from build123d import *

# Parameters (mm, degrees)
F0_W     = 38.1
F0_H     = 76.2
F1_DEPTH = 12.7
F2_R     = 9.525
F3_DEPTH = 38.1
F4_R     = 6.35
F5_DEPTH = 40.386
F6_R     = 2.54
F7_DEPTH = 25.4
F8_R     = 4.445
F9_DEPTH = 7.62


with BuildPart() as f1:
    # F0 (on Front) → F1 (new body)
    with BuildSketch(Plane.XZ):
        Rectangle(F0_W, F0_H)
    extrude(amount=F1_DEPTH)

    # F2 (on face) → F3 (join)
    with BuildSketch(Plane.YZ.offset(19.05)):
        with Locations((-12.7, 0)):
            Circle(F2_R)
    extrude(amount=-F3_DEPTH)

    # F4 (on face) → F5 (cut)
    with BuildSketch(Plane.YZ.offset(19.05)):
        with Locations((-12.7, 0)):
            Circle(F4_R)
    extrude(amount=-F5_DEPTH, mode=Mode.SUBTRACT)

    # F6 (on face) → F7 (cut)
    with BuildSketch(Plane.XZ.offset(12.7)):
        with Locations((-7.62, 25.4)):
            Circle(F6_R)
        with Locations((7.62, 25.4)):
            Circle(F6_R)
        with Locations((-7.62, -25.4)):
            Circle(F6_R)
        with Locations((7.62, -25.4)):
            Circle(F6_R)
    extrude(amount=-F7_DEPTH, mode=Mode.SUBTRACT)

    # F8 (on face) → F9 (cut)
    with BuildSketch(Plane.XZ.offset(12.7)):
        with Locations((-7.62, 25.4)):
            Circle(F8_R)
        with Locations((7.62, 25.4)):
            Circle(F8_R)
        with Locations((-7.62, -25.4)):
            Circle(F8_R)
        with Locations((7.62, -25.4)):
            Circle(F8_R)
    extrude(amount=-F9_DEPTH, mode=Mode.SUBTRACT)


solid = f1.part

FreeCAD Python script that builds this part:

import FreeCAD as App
import Part
import Sketcher
Q = App.Units.Quantity


def add_polygon(sketch, points):
    """Adds a closed chain of lines whose ends are joined by coincident constraints."""
    first, n = sketch.GeometryCount, len(points)
    for a, b in zip(points, points[1:] + points[:1]):
        sketch.addGeometry(Part.LineSegment(App.Vector(*a, 0), App.Vector(*b, 0)), False)
    for i in range(n):
        sketch.addConstraint(Sketcher.Constraint("Coincident", first + i, 2, first + (i + 1) % n, 1))

doc = App.newDocument("Part")
body = doc.addObject("PartDesign::Body", "Body")

sketch1 = body.newObject("Sketcher::SketchObject", "Sketch")
sketch1.AttachmentSupport = (doc.getObject("XZ_Plane"), [""])
sketch1.MapMode = "FlatFace"
add_polygon(sketch1, [(-19, 38), (-19, -38), (19, -38), (19, 38)])
sketch1.addConstraint([
    Sketcher.Constraint("Vertical", 0),
    Sketcher.Constraint("Horizontal", 1),
    Sketcher.Constraint("Vertical", 2),
    Sketcher.Constraint("Horizontal", 3),
    Sketcher.Constraint("Symmetric", 0, 2, 2, 2, -1, 1),
    Sketcher.Constraint("DistanceY", 0, 2, 0, 1, Q("3 in")),
    Sketcher.Constraint("DistanceX", 1, 1, 1, 2, Q("1.5 in")),
])
pad1 = body.newObject("PartDesign::Pad", "Pad")
pad1.Profile = sketch1
pad1.Length = Q("0.5 in")

sketch2 = body.newObject("Sketcher::SketchObject", "Sketch001")
sketch2.AttachmentSupport = (doc.getObject("YZ_Plane"), [""])
sketch2.MapMode = "FlatFace"
sketch2.AttachmentOffset = App.Placement(App.Vector(0, 0, 0.75 * 25.4), App.Rotation())
sketch2.addGeometry(Part.Circle(App.Vector(-13, 0, 0), App.Vector(0, 0, 1), 10), False)
sketch2.addConstraint([
    Sketcher.Constraint("PointOnObject", 0, 3, -1),
    Sketcher.Constraint("Diameter", 0, Q("0.75 in")),
    Sketcher.Constraint("DistanceX", 0, 3, -1, 1, Q("0.5 in")),
])
pad2 = body.newObject("PartDesign::Pad", "Pad001")
pad2.Profile = sketch2
pad2.Length = Q("1.5 in")
pad2.Reversed = True

sketch3 = body.newObject("Sketcher::SketchObject", "Sketch002")
sketch3.AttachmentSupport = (doc.getObject("YZ_Plane"), [""])
sketch3.MapMode = "FlatFace"
sketch3.AttachmentOffset = App.Placement(App.Vector(0, 0, 0.75 * 25.4), App.Rotation())
sketch3.addGeometry(Part.Circle(App.Vector(-13, 0, 0), App.Vector(0, 0, 1), 6), False)
sketch3.addConstraint([
    Sketcher.Constraint("PointOnObject", 0, 3, -1),
    Sketcher.Constraint("Diameter", 0, Q("0.5 in")),
    Sketcher.Constraint("DistanceX", 0, 3, -1, 1, Q("0.5 in")),
])
pocket1 = body.newObject("PartDesign::Pocket", "Pocket")
pocket1.Profile = sketch3
pocket1.Length = Q("1.59 in")

sketch4 = body.newObject("Sketcher::SketchObject", "Sketch003")
sketch4.AttachmentSupport = (doc.getObject("XZ_Plane"), [""])
sketch4.MapMode = "FlatFace"
sketch4.AttachmentOffset = App.Placement(App.Vector(0, 0, 0.5 * 25.4), App.Rotation())
sketch4.addGeometry([
    Part.Circle(App.Vector(-7.6, 25.4, 0), App.Vector(0, 0, 1), 2.5),
    Part.Circle(App.Vector(7.6, 25.4, 0), App.Vector(0, 0, 1), 2.5),
    Part.Circle(App.Vector(-7.6, -25.4, 0), App.Vector(0, 0, 1), 2.5),
    Part.Circle(App.Vector(7.6, -25.4, 0), App.Vector(0, 0, 1), 2.5),
], False)
sketch4.addConstraint([
    Sketcher.Constraint("Equal", 0, 1),
    Sketcher.Constraint("Equal", 1, 2),
    Sketcher.Constraint("Equal", 2, 3),
    Sketcher.Constraint("Symmetric", 1, 3, 2, 3, -1, 1),
    Sketcher.Constraint("Symmetric", 0, 3, 3, 3, -1, 1),
    Sketcher.Constraint("Symmetric", 0, 3, 1, 3, -2),
    Sketcher.Constraint("Diameter", 0, Q("0.2 in")),
    Sketcher.Constraint("DistanceY", -1, 1, 0, 3, Q("1 in")),
    Sketcher.Constraint("DistanceX", 0, 3, -1, 1, Q("0.3 in")),
])
pocket2 = body.newObject("PartDesign::Pocket", "Pocket001")
pocket2.Profile = sketch4
pocket2.Length = Q("1 in")

sketch5 = body.newObject("Sketcher::SketchObject", "Sketch004")
sketch5.AttachmentSupport = (doc.getObject("XZ_Plane"), [""])
sketch5.MapMode = "FlatFace"
sketch5.AttachmentOffset = App.Placement(App.Vector(0, 0, 0.5 * 25.4), App.Rotation())
sketch5.addGeometry([
    Part.Circle(App.Vector(-7.6, 25.4, 0), App.Vector(0, 0, 1), 4.4),
    Part.Circle(App.Vector(7.6, 25.4, 0), App.Vector(0, 0, 1), 4.4),
    Part.Circle(App.Vector(-7.6, -25.4, 0), App.Vector(0, 0, 1), 4.4),
    Part.Circle(App.Vector(7.6, -25.4, 0), App.Vector(0, 0, 1), 4.4),
], False)
sketch5.addConstraint([
    Sketcher.Constraint("Equal", 0, 1),
    Sketcher.Constraint("Equal", 1, 2),
    Sketcher.Constraint("Equal", 2, 3),
    Sketcher.Constraint("Symmetric", 1, 3, 2, 3, -1, 1),
    Sketcher.Constraint("Symmetric", 0, 3, 3, 3, -1, 1),
    Sketcher.Constraint("Symmetric", 0, 3, 1, 3, -2),
    Sketcher.Constraint("Diameter", 0, Q("0.35 in")),
    Sketcher.Constraint("DistanceY", -1, 1, 0, 3, Q("1 in")),
    Sketcher.Constraint("DistanceX", 0, 3, -1, 1, Q("0.3 in")),
])
pocket3 = body.newObject("PartDesign::Pocket", "Pocket002")
pocket3.Profile = sketch5
pocket3.Length = Q("0.3 in")

doc.recompute()
